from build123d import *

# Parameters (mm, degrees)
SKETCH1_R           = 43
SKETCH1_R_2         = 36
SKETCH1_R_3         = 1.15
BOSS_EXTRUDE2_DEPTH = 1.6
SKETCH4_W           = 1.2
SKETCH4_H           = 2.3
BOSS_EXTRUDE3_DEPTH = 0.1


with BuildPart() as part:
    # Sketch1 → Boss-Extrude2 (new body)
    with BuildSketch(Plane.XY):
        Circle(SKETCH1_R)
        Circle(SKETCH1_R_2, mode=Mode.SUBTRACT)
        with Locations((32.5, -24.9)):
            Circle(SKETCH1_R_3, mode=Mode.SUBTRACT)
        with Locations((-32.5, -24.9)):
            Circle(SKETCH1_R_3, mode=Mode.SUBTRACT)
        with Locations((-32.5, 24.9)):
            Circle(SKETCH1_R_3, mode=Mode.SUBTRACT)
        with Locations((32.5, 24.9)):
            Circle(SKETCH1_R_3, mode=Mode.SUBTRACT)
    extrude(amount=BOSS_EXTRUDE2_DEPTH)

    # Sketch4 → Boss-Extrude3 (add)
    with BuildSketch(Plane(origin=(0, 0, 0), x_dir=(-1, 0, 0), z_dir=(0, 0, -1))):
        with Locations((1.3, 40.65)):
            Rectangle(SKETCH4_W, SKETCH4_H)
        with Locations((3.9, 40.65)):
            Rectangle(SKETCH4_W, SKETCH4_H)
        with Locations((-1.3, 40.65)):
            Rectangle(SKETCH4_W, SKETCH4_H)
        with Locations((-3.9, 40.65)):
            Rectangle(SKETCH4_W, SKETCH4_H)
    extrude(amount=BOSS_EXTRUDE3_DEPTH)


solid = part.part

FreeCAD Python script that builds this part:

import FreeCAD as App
import Part
import Sketcher
from FreeCAD import Vector
Q = App.Units.Quantity


def add_polygon(sketch, points):
    """Adds a closed chain of lines whose ends are joined by coincident constraints."""
    first, n = sketch.GeometryCount, len(points)
    for a, b in zip(points, points[1:] + points[:1]):
        sketch.addGeometry(Part.LineSegment(App.Vector(*a, 0), App.Vector(*b, 0)), False)
    for i in range(n):
        sketch.addConstraint(Sketcher.Constraint("Coincident", first + i, 2, first + (i + 1) % n, 1))

doc = App.newDocument("Part")
body = doc.addObject("PartDesign::Body", "Body")

# Sketch on XY plane
sketch1 = body.newObject("Sketcher::SketchObject", "Sketch")
sketch1.AttachmentSupport = (doc.getObject("XY_Plane"), [""])
sketch1.MapMode = "FlatFace"
sketch1.addGeometry(Part.Circle(Vector(0, 0, 0), Vector(0, 0, 1), 43), False)
sketch1.addGeometry(Part.Circle(Vector(-32.5, -24.9, 0), Vector(0, 0, 1), 1.15), False)
sketch1.addGeometry(Part.Circle(Vector(32.5, -24.9, 0), Vector(0, 0, 1), 1.15), False)
sketch1.addGeometry(Part.Circle(Vector(-32.5, 24.9, 0), Vector(0, 0, 1), 1.15), False)
sketch1.addGeometry(Part.Circle(Vector(0, 0, 0), Vector(0, 0, 1), 36), False)
sketch1.addGeometry(Part.Circle(Vector(32.5, 24.9, 0), Vector(0, 0, 1), 1.15), False)
sketch1.addConstraint(Sketcher.Constraint("Coincident", 0, 3, -1, 1))
sketch1.addConstraint(Sketcher.Constraint("Coincident", 4, 3, -1, 1))
sketch1.addConstraint(Sketcher.Constraint("Equal", 1, 2))
sketch1.addConstraint(Sketcher.Constraint("Equal", 2, 3))
sketch1.addConstraint(Sketcher.Constraint("Equal", 3, 5))
sketch1.addConstraint(Sketcher.Constraint("Symmetric", 2, 3, 3, 3, -1, 1))
sketch1.addConstraint(Sketcher.Constraint("Symmetric", 1, 3, 5, 3, -1, 1))
sketch1.addConstraint(Sketcher.Constraint("Symmetric", 1, 3, 2, 3, -2))
sketch1.addConstraint(Sketcher.Constraint("Diameter", 0, Q("86 mm")))
sketch1.addConstraint(Sketcher.Constraint("Diameter", 4, Q("72 mm")))
sketch1.addConstraint(Sketcher.Constraint("Diameter", 1, Q("2.3 mm")))
sketch1.addConstraint(Sketcher.Constraint("DistanceX", 1, 3, 2, 3, Q("65 mm")))
sketch1.addConstraint(Sketcher.Constraint("DistanceY", 1, 3, -1, 1, Q("24.9 mm")))
pad1 = body.newObject("PartDesign::Pad", "Pad")
pad1.Profile = sketch1
pad1.Length = 1.6

# Sketch on XY plane
sketch2 = body.newObject("Sketcher::SketchObject", "Sketch001")
sketch2.AttachmentSupport = (doc.getObject("XY_Plane"), [""])
sketch2.MapMode = "FlatFace"
add_polygon(sketch2, [(-0.7, 41.8), (-0.7, 39.5), (-1.9, 39.5), (-1.9, 41.8)])  # lines 0-3
add_polygon(sketch2, [(-3.3, 41.8), (-3.3, 39.5), (-4.5, 39.5), (-4.5, 41.8)])  # lines 4-7
add_polygon(sketch2, [(1.9, 41.8), (1.9, 39.5), (0.7, 39.5), (0.7, 41.8)])  # lines 8-11
add_polygon(sketch2, [(4.5, 41.8), (4.5, 39.5), (3.3, 39.5), (3.3, 41.8)])  # lines 12-15
sketch2.addConstraint(Sketcher.Constraint("Vertical", 0))
sketch2.addConstraint(Sketcher.Constraint("Horizontal", 1))
sketch2.addConstraint(Sketcher.Constraint("Vertical", 2))
sketch2.addConstraint(Sketcher.Constraint("Horizontal", 3))
sketch2.addConstraint(Sketcher.Constraint("Vertical", 4))
sketch2.addConstraint(Sketcher.Constraint("Horizontal", 5))
sketch2.addConstraint(Sketcher.Constraint("Vertical", 6))
sketch2.addConstraint(Sketcher.Constraint("Horizontal", 7))
sketch2.addConstraint(Sketcher.Constraint("Vertical", 8))
sketch2.addConstraint(Sketcher.Constraint("Horizontal", 9))
sketch2.addConstraint(Sketcher.Constraint("Vertical", 10))
sketch2.addConstraint(Sketcher.Constraint("Horizontal", 11))
sketch2.addConstraint(Sketcher.Constraint("Vertical", 12))
sketch2.addConstraint(Sketcher.Constraint("Horizontal", 13))
sketch2.addConstraint(Sketcher.Constraint("Vertical", 14))
sketch2.addConstraint(Sketcher.Constraint("Horizontal", 15))
sketch2.addConstraint(Sketcher.Constraint("Symmetric", 1, 2, 8, 2, -2))
sketch2.addConstraint(Sketcher.Constraint("Symmetric", 3, 2, 10, 2, -2))
sketch2.addConstraint(Sketcher.Constraint("Symmetric", 5, 2, 12, 2, -2))
sketch2.addConstraint(Sketcher.Constraint("Symmetric", 7, 2, 14, 2, -2))
sketch2.addConstraint(Sketcher.Constraint("Horizontal", 1, 2, 4, 2))
sketch2.addConstraint(Sketcher.Constraint("Horizontal", 3, 2, 6, 2))
sketch2.addConstraint(Sketcher.Constraint("Equal", 3, 5))
sketch2.addConstraint(Sketcher.Constraint("DistanceX", 1, 2, 1, 1, Q("1.2 mm")))
sketch2.addConstraint(Sketcher.Constraint("DistanceY", 0, 2, 0, 1, Q("2.3 mm")))
sketch2.addConstraint(Sketcher.Constraint("DistanceX", 0, 2, -1, 1, Q("0.7 mm")))
sketch2.addConstraint(Sketcher.Constraint("DistanceY", -1, 1, 0, 2, Q("39.5 mm")))
sketch2.addConstraint(Sketcher.Constraint("DistanceX", 4, 2, -1, 1, Q("3.3 mm")))
pad2 = body.newObject("PartDesign::Pad", "Pad001")
pad2.Profile = sketch2
pad2.Length = 0.1
pad2.Reversed = True

doc.recompute()
